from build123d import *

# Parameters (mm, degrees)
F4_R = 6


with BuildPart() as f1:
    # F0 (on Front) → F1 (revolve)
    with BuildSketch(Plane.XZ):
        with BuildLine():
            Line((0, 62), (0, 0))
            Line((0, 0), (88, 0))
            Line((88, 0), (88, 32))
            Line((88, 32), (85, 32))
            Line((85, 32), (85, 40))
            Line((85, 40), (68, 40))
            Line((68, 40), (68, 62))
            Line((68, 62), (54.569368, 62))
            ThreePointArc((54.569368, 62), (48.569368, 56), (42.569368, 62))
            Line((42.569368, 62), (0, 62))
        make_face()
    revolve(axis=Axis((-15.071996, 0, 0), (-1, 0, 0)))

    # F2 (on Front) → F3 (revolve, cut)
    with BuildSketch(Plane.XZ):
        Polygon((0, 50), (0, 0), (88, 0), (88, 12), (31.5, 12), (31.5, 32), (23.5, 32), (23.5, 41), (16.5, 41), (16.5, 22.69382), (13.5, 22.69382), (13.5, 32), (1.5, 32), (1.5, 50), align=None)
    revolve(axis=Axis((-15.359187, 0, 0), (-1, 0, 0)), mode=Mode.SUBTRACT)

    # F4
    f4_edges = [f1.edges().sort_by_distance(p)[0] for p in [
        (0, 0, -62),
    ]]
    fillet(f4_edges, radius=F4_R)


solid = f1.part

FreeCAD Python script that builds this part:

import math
import FreeCAD as App
import Part
import Sketcher


def edges_at(feature, points):
    """Names of the edges that pass closest to the given points."""
    edges = feature.Shape.Edges
    near = lambda p: min(range(len(edges)), key=lambda i: edges[i].distToShape(Part.Vertex(*p))[0])
    return sorted({f"Edge{near(p) + 1}" for p in points})


def add_polygon(sketch, points):
    """Adds a closed chain of lines whose ends are joined by coincident constraints."""
    first, n = sketch.GeometryCount, len(points)
    for a, b in zip(points, points[1:] + points[:1]):
        sketch.addGeometry(Part.LineSegment(App.Vector(*a, 0), App.Vector(*b, 0)), False)
    for i in range(n):
        sketch.addConstraint(Sketcher.Constraint("Coincident", first + i, 2, first + (i + 1) % n, 1))

doc = App.newDocument("Part")
body = doc.addObject("PartDesign::Body", "Body")

# Sketch on XZ plane
sketch1 = body.newObject("Sketcher::SketchObject", "Sketch")
sketch1.AttachmentSupport = (doc.getObject("XZ_Plane"), [""])
sketch1.MapMode = "FlatFace"
sketch1.addGeometry([
    Part.LineSegment(App.Vector(0, 62, 0), App.Vector(0, 0, 0)),  # 0
    Part.LineSegment(App.Vector(0, 0, 0), App.Vector(88, 0, 0)),  # 1
    Part.LineSegment(App.Vector(88, 0, 0), App.Vector(88, 32, 0)),  # 2
    Part.LineSegment(App.Vector(88, 32, 0), App.Vector(85, 32, 0)),  # 3
    Part.LineSegment(App.Vector(85, 32, 0), App.Vector(85, 40, 0)),  # 4
    Part.LineSegment(App.Vector(85, 40, 0), App.Vector(68, 40, 0)),  # 5
    Part.LineSegment(App.Vector(68, 40, 0), App.Vector(68, 62, 0)),  # 6
    Part.LineSegment(App.Vector(68, 62, 0), App.Vector(54.6, 62, 0)),  # 7
    Part.ArcOfCircle(Part.Circle(App.Vector(48.6, 62, 0), App.Vector(0, 0, 1), 6), math.radians(180), math.radians(360)),  # 8
    Part.LineSegment(App.Vector(42.6, 62, 0), App.Vector(0, 62, 0)),  # 9
], False)
sketch1.addConstraint([
    Sketcher.Constraint("Coincident", 0, 2, 1, 1),
    Sketcher.Constraint("Coincident", 1, 2, 2, 1),
    Sketcher.Constraint("Coincident", 2, 2, 3, 1),
    Sketcher.Constraint("Coincident", 3, 2, 4, 1),
    Sketcher.Constraint("Coincident", 4, 2, 5, 1),
    Sketcher.Constraint("Coincident", 5, 2, 6, 1),
    Sketcher.Constraint("Coincident", 6, 2, 7, 1),
    Sketcher.Constraint("Coincident", 7, 2, 8, 2),
    Sketcher.Constraint("Coincident", 8, 1, 9, 1),
    Sketcher.Constraint("Coincident", 9, 2, 0, 1),
    Sketcher.Constraint("Vertical", 0),
    Sketcher.Constraint("Horizontal", 1),
    Sketcher.Constraint("Vertical", 2),
    Sketcher.Constraint("Horizontal", 3),
    Sketcher.Constraint("Vertical", 4),
    Sketcher.Constraint("Horizontal", 5),
    Sketcher.Constraint("Vertical", 6),
    Sketcher.Constraint("Horizontal", 7),
    Sketcher.Constraint("Horizontal", 9),
    Sketcher.Constraint("Coincident", 0, 2, -1, 1),
    Sketcher.Constraint("Horizontal", 8, 3, 6, 2),
    Sketcher.Constraint("Horizontal", 7, 2, 8, 1),
    Sketcher.Constraint("Radius", 8, 6.0),
    Sketcher.Constraint("DistanceX", 1, 1, 1, 2, 88.0),
    Sketcher.Constraint("DistanceX", 3, 2, 3, 1, 3.0),
    Sketcher.Constraint("DistanceX", 5, 2, 5, 1, 17.0),
    Sketcher.Constraint("DistanceY", 0, 2, 0, 1, 62.0),
    Sketcher.Constraint("DistanceY", 2, 1, 2, 2, 32.0),
    Sketcher.Constraint("DistanceY", 4, 1, 4, 2, 8.0),
    Sketcher.Constraint("DistanceX", 7, 2, 7, 1, 13.430632),
])
revolution = body.newObject("PartDesign::Revolution", "Revolution")
revolution.Profile = sketch1
revolution.ReferenceAxis = (sketch1, ["H_Axis"])
revolution.Angle = 360

# Sketch on XZ plane
sketch2 = body.newObject("Sketcher::SketchObject", "Sketch001")
sketch2.AttachmentSupport = (doc.getObject("XZ_Plane"), [""])
sketch2.MapMode = "FlatFace"
add_polygon(sketch2, [(0, 50), (0, 0), (88, 0), (88, 12), (31.5, 12), (31.5, 32), (23.5, 32), (23.5, 41), (16.5, 41), (16.5, 22.7), (13.5, 22.7), (13.5, 32), (1.5, 32), (1.5, 50)])  # lines 0-13
sketch2.addConstraint([
    Sketcher.Constraint("Vertical", 0),
    Sketcher.Constraint("Horizontal", 1),
    Sketcher.Constraint("Vertical", 2),
    Sketcher.Constraint("Horizontal", 3),
    Sketcher.Constraint("Vertical", 4),
    Sketcher.Constraint("Horizontal", 5),
    Sketcher.Constraint("Vertical", 6),
    Sketcher.Constraint("Horizontal", 7),
    Sketcher.Constraint("Vertical", 8),
    Sketcher.Constraint("Horizontal", 9),
    Sketcher.Constraint("Vertical", 10),
    Sketcher.Constraint("Horizontal", 11),
    Sketcher.Constraint("Vertical", 12),
    Sketcher.Constraint("Horizontal", 13),
    Sketcher.Constraint("Coincident", 0, 2, -1, 1),
    Sketcher.Constraint("Horizontal", 5, 2, 10, 2),
    Sketcher.Constraint("Equal", 11, 2),
    Sketcher.Constraint("DistanceX", 1, 1, 1, 2, 88.0),
    Sketcher.Constraint("DistanceX", 5, 2, 5, 1, 8.0),
    Sketcher.Constraint("DistanceX", 7, 2, 7, 1, 7.0),
    Sketcher.Constraint("DistanceX", 9, 2, 9, 1, 3.0),
    Sketcher.Constraint("DistanceX", 11, 2, 11, 1, 12.0),
    Sketcher.Constraint("DistanceY", 0, 2, 0, 1, 50.0),
    Sketcher.Constraint("DistanceY", 4, 1, 4, 2, 20.0),
    Sketcher.Constraint("DistanceY", 6, 1, 6, 2, 9.0),
    Sketcher.Constraint("DistanceX", 3, 2, 3, 1, 56.5),
    Sketcher.Constraint("DistanceY", 8, 2, 8, 1, 18.30618),
])
groove = body.newObject("PartDesign::Groove", "Groove")
groove.Profile = sketch2
groove.ReferenceAxis = (sketch2, ["H_Axis"])
groove.Angle = 360
doc.recompute()

fillet = body.newObject("PartDesign::Fillet", "Fillet")
fillet.Base = (groove, edges_at(groove, [(0, 0, -62)]))
fillet.Radius = 6

doc.recompute()
